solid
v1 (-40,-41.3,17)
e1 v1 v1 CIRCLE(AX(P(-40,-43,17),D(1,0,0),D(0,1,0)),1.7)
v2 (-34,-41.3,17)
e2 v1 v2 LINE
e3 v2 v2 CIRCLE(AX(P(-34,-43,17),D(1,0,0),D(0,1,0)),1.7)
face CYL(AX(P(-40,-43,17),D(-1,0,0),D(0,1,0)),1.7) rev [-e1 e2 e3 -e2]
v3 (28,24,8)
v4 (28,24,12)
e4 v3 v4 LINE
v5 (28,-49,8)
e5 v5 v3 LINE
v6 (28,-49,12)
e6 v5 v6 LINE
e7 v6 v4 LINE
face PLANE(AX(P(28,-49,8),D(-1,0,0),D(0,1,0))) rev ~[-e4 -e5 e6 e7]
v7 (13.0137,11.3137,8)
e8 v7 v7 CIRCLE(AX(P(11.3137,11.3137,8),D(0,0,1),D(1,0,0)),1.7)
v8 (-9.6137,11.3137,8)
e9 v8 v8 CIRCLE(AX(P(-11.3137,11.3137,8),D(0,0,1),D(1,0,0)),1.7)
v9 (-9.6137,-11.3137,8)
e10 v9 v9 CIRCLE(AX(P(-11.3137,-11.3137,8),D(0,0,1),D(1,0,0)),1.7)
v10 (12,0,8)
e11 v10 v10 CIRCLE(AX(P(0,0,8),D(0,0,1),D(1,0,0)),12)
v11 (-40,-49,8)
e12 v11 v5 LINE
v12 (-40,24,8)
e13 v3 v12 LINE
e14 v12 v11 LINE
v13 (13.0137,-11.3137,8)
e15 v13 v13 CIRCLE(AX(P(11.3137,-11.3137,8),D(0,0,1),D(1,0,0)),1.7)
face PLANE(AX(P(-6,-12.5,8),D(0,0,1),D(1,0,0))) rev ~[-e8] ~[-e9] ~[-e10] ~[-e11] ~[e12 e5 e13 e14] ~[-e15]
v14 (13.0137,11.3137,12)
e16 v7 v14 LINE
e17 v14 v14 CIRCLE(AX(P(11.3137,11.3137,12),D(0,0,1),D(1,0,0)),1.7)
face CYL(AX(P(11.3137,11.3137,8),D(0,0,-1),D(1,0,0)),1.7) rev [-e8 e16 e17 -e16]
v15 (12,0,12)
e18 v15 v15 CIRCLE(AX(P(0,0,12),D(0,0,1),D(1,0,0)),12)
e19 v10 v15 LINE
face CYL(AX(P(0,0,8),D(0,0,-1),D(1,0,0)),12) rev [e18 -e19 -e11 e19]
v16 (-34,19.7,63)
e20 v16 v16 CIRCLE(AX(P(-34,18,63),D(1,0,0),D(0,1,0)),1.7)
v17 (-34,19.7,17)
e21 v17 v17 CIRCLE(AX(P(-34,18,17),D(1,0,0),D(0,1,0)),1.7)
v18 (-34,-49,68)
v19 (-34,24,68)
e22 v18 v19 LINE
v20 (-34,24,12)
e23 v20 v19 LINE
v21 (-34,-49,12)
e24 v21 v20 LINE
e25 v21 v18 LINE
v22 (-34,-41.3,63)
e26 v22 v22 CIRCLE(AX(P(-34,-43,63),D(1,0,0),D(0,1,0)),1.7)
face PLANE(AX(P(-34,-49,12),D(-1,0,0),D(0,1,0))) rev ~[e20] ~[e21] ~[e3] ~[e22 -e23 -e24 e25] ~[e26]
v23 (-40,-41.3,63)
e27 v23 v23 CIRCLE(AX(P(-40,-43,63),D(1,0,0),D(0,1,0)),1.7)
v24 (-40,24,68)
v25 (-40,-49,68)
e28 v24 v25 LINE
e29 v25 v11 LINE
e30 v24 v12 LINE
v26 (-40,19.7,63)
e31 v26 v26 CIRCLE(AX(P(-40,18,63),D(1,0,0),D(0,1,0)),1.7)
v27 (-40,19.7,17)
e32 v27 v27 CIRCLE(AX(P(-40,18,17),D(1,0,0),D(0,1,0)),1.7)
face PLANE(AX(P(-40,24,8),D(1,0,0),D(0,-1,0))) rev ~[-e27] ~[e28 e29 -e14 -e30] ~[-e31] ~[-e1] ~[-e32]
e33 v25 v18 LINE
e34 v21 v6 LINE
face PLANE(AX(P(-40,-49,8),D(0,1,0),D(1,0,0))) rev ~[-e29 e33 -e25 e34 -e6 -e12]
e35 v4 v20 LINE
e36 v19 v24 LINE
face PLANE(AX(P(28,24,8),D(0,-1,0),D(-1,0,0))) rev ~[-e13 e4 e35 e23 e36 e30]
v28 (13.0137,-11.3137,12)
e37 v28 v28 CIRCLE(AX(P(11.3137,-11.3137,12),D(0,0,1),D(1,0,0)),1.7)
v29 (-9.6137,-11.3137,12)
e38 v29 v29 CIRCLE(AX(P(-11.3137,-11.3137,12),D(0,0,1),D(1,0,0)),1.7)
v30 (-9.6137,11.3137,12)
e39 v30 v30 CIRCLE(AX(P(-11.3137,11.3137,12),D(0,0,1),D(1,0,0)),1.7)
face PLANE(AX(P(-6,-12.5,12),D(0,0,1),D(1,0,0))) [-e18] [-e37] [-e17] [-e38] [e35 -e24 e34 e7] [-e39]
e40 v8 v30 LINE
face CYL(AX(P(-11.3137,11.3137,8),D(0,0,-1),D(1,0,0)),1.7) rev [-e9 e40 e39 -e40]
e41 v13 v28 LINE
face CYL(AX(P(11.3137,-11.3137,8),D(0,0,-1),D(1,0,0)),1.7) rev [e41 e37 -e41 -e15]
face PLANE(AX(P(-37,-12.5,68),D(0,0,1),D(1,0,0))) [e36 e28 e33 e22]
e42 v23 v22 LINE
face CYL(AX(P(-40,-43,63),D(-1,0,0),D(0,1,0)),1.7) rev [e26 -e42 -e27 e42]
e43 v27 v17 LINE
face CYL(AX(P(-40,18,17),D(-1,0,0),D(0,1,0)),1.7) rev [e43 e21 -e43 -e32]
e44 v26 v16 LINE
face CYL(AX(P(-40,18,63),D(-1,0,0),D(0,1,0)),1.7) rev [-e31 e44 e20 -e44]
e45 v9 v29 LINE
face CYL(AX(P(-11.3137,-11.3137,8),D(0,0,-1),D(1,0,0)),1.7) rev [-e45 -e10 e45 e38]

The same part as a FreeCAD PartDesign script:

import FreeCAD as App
import Part
import Sketcher
from FreeCAD import Vector
Q = App.Units.Quantity

doc = App.newDocument("Part")
body = doc.addObject("PartDesign::Body", "Body")

sketch1 = body.newObject("Sketcher::SketchObject", "Sketch")
sketch1.AttachmentSupport = (doc.getObject("XY_Plane"), [""])
sketch1.MapMode = "FlatFace"
sketch1.AttachmentOffset = App.Placement(Vector(0, 0, 8), App.Rotation())
sketch1.addGeometry([
    Part.LineSegment(Vector(-40, 24, 0), Vector(-40, -49, 0)),
    Part.LineSegment(Vector(-40, -49, 0), Vector(28, -49, 0)),
    Part.LineSegment(Vector(28, -49, 0), Vector(28, 24, 0)),
    Part.LineSegment(Vector(28, 24, 0), Vector(-40, 24, 0)),
    Part.Circle(Vector(-11.3, -11.3, 0), Vector(0, 0, 1), 1.7),
    Part.Circle(Vector(-11.3, 11.3, 0), Vector(0, 0, 1), 1.7),
    Part.Circle(Vector(0, 0, 0), Vector(0, 0, 1), 12),
    Part.Circle(Vector(11.3, -11.3, 0), Vector(0, 0, 1), 1.7),
    Part.Circle(Vector(11.3, 11.3, 0), Vector(0, 0, 1), 1.7),
], False)
sketch1.addConstraint([
    Sketcher.Constraint("Coincident", 0, 2, 1, 1),
    Sketcher.Constraint("Coincident", 1, 2, 2, 1),
    Sketcher.Constraint("Coincident", 2, 2, 3, 1),
    Sketcher.Constraint("Coincident", 3, 2, 0, 1),
    Sketcher.Constraint("Vertical", 0),
    Sketcher.Constraint("Horizontal", 1),
    Sketcher.Constraint("Vertical", 2),
    Sketcher.Constraint("Horizontal", 3),
    Sketcher.Constraint("Coincident", 6, 3, -1, 1),
    Sketcher.Constraint("Equal", 4, 5),
    Sketcher.Constraint("Equal", 5, 7),
    Sketcher.Constraint("Equal", 7, 8),
    Sketcher.Constraint("Symmetric", 5, 3, 7, 3, -1, 1),
    Sketcher.Constraint("Symmetric", 4, 3, 8, 3, -1, 1),
    Sketcher.Constraint("Symmetric", 4, 3, 7, 3, -2),
    Sketcher.Constraint("Diameter", 6, Q("24 mm")),
    Sketcher.Constraint("Diameter", 4, Q("3.4 mm")),
    Sketcher.Constraint("DistanceX", 1, 1, 1, 2, Q("68 mm")),
    Sketcher.Constraint("DistanceY", 0, 2, 0, 1, Q("73 mm")),
    Sketcher.Constraint("DistanceX", 0, 2, -1, 1, Q("40 mm")),
    Sketcher.Constraint("DistanceY", 0, 2, -1, 1, Q("49 mm")),
    Sketcher.Constraint("DistanceX", 4, 3, -1, 1, Q("11.3137 mm")),
    Sketcher.Constraint("DistanceY", 4, 3, -1, 1, Q("11.3137 mm")),
])
pad1 = body.newObject("PartDesign::Pad", "Pad")
pad1.Profile = sketch1
pad1.Length = 4

sketch2 = body.newObject("Sketcher::SketchObject", "Sketch001")
sketch2.AttachmentSupport = (doc.getObject("XY_Plane"), [""])
sketch2.MapMode = "FlatFace"
sketch2.AttachmentOffset = App.Placement(Vector(0, 0, 12), App.Rotation())
sketch2.addGeometry([
    Part.LineSegment(Vector(-40, 24, 0), Vector(-40, -49, 0)),
    Part.LineSegment(Vector(-40, -49, 0), Vector(-34, -49, 0)),
    Part.LineSegment(Vector(-34, -49, 0), Vector(-34, 24, 0)),
    Part.LineSegment(Vector(-34, 24, 0), Vector(-40, 24, 0)),
], False)
sketch2.addConstraint([
    Sketcher.Constraint("Coincident", 0, 2, 1, 1),
    Sketcher.Constraint("Coincident", 1, 2, 2, 1),
    Sketcher.Constraint("Coincident", 2, 2, 3, 1),
    Sketcher.Constraint("Coincident", 3, 2, 0, 1),
    Sketcher.Constraint("Vertical", 0),
    Sketcher.Constraint("Horizontal", 1),
    Sketcher.Constraint("Vertical", 2),
    Sketcher.Constraint("Horizontal", 3),
    Sketcher.Constraint("DistanceX", 1, 1, 1, 2, Q("6 mm")),
    Sketcher.Constraint("DistanceY", 0, 2, 0, 1, Q("73 mm")),
    Sketcher.Constraint("DistanceX", 0, 2, -1, 1, Q("40 mm")),
    Sketcher.Constraint("DistanceY", 0, 2, -1, 1, Q("49 mm")),
])
pad2 = body.newObject("PartDesign::Pad", "Pad001")
pad2.Profile = sketch2
pad2.Length = 56

sketch3 = body.newObject("Sketcher::SketchObject", "Sketch002")
sketch3.AttachmentSupport = (doc.getObject("YZ_Plane"), [""])
sketch3.MapMode = "FlatFace"
sketch3.AttachmentOffset = App.Placement(Vector(0, 0, -40), App.Rotation())
sketch3.addGeometry([
    Part.Circle(Vector(-43, 63, 0), Vector(0, 0, 1), 1.7),
    Part.Circle(Vector(-43, 17, 0), Vector(0, 0, 1), 1.7),
    Part.Circle(Vector(18, 63, 0), Vector(0, 0, 1), 1.7),
    Part.Circle(Vector(18, 17, 0), Vector(0, 0, 1), 1.7),
], False)
sketch3.addConstraint([
    Sketcher.Constraint("Equal", 0, 1),
    Sketcher.Constraint("Equal", 1, 2),
    Sketcher.Constraint("Equal", 2, 3),
    Sketcher.Constraint("Horizontal", 0, 3, 2, 3),
    Sketcher.Constraint("Horizontal", 1, 3, 3, 3),
    Sketcher.Constraint("Vertical", 0, 3, 1, 3),
    Sketcher.Constraint("Vertical", 2, 3, 3, 3),
    Sketcher.Constraint("Diameter", 0, Q("3.4 mm")),
    Sketcher.Constraint("DistanceX", 0, 3, -1, 1, Q("43 mm")),
    Sketcher.Constraint("DistanceY", -1, 1, 0, 3, Q("63 mm")),
    Sketcher.Constraint("DistanceY", -1, 1, 1, 3, Q("17 mm")),
    Sketcher.Constraint("DistanceX", -1, 1, 2, 3, Q("18 mm")),
])
pocket1 = body.newObject("PartDesign::Pocket", "Pocket")
pocket1.Profile = sketch3
pocket1.Length = 6
pocket1.Reversed = True

doc.recompute()
